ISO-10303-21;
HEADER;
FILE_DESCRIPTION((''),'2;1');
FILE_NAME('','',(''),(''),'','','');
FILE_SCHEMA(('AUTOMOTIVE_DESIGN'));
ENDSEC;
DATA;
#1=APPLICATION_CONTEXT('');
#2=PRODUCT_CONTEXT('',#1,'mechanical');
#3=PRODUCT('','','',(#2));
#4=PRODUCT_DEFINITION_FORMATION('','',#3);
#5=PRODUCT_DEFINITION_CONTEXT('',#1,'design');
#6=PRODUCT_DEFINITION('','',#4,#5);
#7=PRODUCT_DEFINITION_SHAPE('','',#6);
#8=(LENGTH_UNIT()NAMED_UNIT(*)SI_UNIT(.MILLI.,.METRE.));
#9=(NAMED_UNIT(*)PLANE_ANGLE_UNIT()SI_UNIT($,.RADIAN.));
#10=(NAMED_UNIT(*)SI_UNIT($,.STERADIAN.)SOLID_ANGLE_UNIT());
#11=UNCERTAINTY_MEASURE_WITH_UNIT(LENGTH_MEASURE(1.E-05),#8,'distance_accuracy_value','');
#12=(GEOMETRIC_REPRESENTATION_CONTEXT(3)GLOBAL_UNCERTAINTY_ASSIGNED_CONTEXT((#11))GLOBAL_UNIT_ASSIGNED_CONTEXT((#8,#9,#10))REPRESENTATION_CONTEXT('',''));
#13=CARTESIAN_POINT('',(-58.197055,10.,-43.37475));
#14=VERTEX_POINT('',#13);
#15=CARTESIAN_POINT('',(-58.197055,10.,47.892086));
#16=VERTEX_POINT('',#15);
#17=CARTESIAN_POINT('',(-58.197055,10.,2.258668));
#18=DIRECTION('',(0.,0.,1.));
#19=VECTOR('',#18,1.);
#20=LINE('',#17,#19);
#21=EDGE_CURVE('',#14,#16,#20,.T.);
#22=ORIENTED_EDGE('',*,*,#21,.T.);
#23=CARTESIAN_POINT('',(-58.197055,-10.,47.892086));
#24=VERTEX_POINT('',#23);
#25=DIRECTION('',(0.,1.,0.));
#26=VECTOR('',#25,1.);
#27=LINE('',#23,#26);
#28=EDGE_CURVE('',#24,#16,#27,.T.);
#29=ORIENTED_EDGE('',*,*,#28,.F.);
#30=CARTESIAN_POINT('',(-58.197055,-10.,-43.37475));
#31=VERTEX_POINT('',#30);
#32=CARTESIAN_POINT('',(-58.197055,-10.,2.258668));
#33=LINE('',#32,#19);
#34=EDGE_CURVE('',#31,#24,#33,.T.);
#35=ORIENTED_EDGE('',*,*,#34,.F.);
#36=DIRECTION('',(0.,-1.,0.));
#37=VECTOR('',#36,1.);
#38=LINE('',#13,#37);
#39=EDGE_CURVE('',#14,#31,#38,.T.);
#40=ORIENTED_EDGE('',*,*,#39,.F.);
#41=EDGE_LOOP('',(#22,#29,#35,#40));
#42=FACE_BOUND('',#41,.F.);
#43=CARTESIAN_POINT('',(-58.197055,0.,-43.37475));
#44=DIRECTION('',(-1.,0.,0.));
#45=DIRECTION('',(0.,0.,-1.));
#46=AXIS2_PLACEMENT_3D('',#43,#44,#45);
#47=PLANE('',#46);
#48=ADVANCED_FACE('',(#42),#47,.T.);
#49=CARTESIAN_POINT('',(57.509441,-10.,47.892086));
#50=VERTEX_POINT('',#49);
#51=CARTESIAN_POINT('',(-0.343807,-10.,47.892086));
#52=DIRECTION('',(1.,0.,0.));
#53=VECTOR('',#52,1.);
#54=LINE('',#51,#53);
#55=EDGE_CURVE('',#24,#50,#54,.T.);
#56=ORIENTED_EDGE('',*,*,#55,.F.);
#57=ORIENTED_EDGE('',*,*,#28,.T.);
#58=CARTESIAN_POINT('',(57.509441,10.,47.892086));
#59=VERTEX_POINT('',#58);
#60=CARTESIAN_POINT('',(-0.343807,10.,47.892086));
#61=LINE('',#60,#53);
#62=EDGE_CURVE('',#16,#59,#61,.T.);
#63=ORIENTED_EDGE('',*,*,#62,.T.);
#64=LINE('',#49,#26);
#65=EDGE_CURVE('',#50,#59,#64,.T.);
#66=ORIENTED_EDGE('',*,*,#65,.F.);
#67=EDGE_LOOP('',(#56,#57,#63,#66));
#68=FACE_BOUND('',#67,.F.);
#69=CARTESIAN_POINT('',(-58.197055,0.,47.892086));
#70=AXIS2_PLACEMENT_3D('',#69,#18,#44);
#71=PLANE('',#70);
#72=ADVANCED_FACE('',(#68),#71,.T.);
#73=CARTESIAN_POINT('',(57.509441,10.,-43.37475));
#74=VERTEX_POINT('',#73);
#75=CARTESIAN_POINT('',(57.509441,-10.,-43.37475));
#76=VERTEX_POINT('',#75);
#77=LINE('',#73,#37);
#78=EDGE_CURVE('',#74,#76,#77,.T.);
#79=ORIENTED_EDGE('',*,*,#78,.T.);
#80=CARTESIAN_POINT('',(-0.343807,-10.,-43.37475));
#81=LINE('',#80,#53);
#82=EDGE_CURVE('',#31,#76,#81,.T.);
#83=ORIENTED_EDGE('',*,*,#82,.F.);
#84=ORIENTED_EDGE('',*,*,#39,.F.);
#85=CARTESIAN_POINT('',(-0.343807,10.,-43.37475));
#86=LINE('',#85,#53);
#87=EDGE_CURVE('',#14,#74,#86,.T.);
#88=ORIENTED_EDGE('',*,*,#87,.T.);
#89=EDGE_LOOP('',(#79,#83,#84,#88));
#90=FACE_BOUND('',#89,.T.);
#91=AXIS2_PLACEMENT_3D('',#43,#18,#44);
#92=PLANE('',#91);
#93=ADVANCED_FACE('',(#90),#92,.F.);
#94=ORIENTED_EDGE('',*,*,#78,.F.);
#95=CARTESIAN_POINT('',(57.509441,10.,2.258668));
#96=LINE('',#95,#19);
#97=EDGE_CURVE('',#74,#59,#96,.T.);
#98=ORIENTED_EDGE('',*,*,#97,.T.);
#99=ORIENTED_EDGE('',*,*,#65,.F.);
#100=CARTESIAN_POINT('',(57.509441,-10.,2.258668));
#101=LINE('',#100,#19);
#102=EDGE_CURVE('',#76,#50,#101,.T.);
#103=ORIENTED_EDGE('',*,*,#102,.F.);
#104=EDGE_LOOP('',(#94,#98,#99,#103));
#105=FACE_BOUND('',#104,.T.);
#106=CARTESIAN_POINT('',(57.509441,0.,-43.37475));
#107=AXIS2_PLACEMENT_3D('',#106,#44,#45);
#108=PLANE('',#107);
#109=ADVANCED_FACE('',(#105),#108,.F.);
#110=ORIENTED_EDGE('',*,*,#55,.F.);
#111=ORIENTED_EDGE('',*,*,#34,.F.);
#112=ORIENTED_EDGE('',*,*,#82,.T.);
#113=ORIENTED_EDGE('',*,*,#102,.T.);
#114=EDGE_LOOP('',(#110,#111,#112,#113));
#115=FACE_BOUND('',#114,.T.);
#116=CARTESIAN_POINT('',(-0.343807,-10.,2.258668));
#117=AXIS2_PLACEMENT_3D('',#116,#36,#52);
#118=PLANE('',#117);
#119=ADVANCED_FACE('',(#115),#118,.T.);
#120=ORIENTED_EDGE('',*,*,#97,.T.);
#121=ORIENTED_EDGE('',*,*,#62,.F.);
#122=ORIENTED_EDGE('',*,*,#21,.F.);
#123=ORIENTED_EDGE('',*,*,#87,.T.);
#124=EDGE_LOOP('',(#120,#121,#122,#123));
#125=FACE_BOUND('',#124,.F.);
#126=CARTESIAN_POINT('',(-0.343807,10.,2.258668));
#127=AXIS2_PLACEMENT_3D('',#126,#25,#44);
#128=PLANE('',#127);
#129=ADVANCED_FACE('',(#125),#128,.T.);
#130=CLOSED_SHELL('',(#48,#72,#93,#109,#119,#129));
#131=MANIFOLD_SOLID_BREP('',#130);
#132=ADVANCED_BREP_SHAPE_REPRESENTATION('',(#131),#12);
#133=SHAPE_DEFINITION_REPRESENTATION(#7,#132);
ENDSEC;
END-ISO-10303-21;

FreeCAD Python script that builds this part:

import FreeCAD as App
import Part
import Sketcher
from FreeCAD import Vector
Q = App.Units.Quantity


def add_polygon(sketch, points):
    """Adds a closed chain of lines whose ends are joined by coincident constraints."""
    first, n = sketch.GeometryCount, len(points)
    for a, b in zip(points, points[1:] + points[:1]):
        sketch.addGeometry(Part.LineSegment(App.Vector(*a, 0), App.Vector(*b, 0)), False)
    for i in range(n):
        sketch.addConstraint(Sketcher.Constraint("Coincident", first + i, 2, first + (i + 1) % n, 1))

doc = App.newDocument("Part")
params = doc.addObject("Spreadsheet::Sheet", "Params")
for row, (alias, value) in enumerate([
    ("pad1_length", "10 mm"),
], start=1):
    params.set(f"A{row}", alias)
    params.set(f"B{row}", "=" + value)
    params.setAlias(f"B{row}", alias)

body = doc.addObject("PartDesign::Body", "Body")

# Sketch on XZ plane
sketch1 = doc.addObject("Sketcher::SketchObject", "Sketch")
body.addObject(sketch1)
sketch1.AttachmentSupport = (doc.XZ_Plane, [""])
sketch1.MapMode = "FlatFace"
add_polygon(sketch1, [(-58.197055, 47.892086), (-58.197055, -43.37475), (57.509441, -43.37475), (57.509441, 47.892086)])  # lines 0-3
sketch1.addConstraint([
    Sketcher.Constraint("Vertical", 0),
    Sketcher.Constraint("Horizontal", 1),
    Sketcher.Constraint("Vertical", 2),
    Sketcher.Constraint("Horizontal", 3),
    Sketcher.Constraint("DistanceX", 1, 1, 1, 2, Q("115.706496 mm")),
    Sketcher.Constraint("DistanceY", 0, 2, 0, 1, Q("91.266837 mm")),
    Sketcher.Constraint("DistanceY", 0, 2, -1, 1, Q("43.37475 mm")),
    Sketcher.Constraint("DistanceX", -1, 1, 1, 2, Q("57.509441 mm")),
])
pad1 = doc.addObject("PartDesign::Pad", "Pad")
body.addObject(pad1)
pad1.Profile = sketch1
pad1.setExpression("Length", "Params.pad1_length")
body2 = doc.addObject("PartDesign::Body", "Body001")
doc.recompute()

body2.BaseFeature = body
doc.recompute()

mirroring = doc.addObject("Part::Mirroring", "Mirroring")
mirroring.Source = body
mirroring.Base = Vector(-0.343807, 0, 2.258668)
mirroring.Normal = Vector(0, 1, 0)
body3 = doc.addObject("PartDesign::Body", "Body002")
body3.BaseFeature = mirroring
boolean = doc.addObject("PartDesign::Boolean", "Boolean")
body2.addObject(boolean)
boolean.Type = "Fuse"
boolean.addObjects([body3])
doc.recompute()
mirroring.Visibility = False

doc.recompute()
